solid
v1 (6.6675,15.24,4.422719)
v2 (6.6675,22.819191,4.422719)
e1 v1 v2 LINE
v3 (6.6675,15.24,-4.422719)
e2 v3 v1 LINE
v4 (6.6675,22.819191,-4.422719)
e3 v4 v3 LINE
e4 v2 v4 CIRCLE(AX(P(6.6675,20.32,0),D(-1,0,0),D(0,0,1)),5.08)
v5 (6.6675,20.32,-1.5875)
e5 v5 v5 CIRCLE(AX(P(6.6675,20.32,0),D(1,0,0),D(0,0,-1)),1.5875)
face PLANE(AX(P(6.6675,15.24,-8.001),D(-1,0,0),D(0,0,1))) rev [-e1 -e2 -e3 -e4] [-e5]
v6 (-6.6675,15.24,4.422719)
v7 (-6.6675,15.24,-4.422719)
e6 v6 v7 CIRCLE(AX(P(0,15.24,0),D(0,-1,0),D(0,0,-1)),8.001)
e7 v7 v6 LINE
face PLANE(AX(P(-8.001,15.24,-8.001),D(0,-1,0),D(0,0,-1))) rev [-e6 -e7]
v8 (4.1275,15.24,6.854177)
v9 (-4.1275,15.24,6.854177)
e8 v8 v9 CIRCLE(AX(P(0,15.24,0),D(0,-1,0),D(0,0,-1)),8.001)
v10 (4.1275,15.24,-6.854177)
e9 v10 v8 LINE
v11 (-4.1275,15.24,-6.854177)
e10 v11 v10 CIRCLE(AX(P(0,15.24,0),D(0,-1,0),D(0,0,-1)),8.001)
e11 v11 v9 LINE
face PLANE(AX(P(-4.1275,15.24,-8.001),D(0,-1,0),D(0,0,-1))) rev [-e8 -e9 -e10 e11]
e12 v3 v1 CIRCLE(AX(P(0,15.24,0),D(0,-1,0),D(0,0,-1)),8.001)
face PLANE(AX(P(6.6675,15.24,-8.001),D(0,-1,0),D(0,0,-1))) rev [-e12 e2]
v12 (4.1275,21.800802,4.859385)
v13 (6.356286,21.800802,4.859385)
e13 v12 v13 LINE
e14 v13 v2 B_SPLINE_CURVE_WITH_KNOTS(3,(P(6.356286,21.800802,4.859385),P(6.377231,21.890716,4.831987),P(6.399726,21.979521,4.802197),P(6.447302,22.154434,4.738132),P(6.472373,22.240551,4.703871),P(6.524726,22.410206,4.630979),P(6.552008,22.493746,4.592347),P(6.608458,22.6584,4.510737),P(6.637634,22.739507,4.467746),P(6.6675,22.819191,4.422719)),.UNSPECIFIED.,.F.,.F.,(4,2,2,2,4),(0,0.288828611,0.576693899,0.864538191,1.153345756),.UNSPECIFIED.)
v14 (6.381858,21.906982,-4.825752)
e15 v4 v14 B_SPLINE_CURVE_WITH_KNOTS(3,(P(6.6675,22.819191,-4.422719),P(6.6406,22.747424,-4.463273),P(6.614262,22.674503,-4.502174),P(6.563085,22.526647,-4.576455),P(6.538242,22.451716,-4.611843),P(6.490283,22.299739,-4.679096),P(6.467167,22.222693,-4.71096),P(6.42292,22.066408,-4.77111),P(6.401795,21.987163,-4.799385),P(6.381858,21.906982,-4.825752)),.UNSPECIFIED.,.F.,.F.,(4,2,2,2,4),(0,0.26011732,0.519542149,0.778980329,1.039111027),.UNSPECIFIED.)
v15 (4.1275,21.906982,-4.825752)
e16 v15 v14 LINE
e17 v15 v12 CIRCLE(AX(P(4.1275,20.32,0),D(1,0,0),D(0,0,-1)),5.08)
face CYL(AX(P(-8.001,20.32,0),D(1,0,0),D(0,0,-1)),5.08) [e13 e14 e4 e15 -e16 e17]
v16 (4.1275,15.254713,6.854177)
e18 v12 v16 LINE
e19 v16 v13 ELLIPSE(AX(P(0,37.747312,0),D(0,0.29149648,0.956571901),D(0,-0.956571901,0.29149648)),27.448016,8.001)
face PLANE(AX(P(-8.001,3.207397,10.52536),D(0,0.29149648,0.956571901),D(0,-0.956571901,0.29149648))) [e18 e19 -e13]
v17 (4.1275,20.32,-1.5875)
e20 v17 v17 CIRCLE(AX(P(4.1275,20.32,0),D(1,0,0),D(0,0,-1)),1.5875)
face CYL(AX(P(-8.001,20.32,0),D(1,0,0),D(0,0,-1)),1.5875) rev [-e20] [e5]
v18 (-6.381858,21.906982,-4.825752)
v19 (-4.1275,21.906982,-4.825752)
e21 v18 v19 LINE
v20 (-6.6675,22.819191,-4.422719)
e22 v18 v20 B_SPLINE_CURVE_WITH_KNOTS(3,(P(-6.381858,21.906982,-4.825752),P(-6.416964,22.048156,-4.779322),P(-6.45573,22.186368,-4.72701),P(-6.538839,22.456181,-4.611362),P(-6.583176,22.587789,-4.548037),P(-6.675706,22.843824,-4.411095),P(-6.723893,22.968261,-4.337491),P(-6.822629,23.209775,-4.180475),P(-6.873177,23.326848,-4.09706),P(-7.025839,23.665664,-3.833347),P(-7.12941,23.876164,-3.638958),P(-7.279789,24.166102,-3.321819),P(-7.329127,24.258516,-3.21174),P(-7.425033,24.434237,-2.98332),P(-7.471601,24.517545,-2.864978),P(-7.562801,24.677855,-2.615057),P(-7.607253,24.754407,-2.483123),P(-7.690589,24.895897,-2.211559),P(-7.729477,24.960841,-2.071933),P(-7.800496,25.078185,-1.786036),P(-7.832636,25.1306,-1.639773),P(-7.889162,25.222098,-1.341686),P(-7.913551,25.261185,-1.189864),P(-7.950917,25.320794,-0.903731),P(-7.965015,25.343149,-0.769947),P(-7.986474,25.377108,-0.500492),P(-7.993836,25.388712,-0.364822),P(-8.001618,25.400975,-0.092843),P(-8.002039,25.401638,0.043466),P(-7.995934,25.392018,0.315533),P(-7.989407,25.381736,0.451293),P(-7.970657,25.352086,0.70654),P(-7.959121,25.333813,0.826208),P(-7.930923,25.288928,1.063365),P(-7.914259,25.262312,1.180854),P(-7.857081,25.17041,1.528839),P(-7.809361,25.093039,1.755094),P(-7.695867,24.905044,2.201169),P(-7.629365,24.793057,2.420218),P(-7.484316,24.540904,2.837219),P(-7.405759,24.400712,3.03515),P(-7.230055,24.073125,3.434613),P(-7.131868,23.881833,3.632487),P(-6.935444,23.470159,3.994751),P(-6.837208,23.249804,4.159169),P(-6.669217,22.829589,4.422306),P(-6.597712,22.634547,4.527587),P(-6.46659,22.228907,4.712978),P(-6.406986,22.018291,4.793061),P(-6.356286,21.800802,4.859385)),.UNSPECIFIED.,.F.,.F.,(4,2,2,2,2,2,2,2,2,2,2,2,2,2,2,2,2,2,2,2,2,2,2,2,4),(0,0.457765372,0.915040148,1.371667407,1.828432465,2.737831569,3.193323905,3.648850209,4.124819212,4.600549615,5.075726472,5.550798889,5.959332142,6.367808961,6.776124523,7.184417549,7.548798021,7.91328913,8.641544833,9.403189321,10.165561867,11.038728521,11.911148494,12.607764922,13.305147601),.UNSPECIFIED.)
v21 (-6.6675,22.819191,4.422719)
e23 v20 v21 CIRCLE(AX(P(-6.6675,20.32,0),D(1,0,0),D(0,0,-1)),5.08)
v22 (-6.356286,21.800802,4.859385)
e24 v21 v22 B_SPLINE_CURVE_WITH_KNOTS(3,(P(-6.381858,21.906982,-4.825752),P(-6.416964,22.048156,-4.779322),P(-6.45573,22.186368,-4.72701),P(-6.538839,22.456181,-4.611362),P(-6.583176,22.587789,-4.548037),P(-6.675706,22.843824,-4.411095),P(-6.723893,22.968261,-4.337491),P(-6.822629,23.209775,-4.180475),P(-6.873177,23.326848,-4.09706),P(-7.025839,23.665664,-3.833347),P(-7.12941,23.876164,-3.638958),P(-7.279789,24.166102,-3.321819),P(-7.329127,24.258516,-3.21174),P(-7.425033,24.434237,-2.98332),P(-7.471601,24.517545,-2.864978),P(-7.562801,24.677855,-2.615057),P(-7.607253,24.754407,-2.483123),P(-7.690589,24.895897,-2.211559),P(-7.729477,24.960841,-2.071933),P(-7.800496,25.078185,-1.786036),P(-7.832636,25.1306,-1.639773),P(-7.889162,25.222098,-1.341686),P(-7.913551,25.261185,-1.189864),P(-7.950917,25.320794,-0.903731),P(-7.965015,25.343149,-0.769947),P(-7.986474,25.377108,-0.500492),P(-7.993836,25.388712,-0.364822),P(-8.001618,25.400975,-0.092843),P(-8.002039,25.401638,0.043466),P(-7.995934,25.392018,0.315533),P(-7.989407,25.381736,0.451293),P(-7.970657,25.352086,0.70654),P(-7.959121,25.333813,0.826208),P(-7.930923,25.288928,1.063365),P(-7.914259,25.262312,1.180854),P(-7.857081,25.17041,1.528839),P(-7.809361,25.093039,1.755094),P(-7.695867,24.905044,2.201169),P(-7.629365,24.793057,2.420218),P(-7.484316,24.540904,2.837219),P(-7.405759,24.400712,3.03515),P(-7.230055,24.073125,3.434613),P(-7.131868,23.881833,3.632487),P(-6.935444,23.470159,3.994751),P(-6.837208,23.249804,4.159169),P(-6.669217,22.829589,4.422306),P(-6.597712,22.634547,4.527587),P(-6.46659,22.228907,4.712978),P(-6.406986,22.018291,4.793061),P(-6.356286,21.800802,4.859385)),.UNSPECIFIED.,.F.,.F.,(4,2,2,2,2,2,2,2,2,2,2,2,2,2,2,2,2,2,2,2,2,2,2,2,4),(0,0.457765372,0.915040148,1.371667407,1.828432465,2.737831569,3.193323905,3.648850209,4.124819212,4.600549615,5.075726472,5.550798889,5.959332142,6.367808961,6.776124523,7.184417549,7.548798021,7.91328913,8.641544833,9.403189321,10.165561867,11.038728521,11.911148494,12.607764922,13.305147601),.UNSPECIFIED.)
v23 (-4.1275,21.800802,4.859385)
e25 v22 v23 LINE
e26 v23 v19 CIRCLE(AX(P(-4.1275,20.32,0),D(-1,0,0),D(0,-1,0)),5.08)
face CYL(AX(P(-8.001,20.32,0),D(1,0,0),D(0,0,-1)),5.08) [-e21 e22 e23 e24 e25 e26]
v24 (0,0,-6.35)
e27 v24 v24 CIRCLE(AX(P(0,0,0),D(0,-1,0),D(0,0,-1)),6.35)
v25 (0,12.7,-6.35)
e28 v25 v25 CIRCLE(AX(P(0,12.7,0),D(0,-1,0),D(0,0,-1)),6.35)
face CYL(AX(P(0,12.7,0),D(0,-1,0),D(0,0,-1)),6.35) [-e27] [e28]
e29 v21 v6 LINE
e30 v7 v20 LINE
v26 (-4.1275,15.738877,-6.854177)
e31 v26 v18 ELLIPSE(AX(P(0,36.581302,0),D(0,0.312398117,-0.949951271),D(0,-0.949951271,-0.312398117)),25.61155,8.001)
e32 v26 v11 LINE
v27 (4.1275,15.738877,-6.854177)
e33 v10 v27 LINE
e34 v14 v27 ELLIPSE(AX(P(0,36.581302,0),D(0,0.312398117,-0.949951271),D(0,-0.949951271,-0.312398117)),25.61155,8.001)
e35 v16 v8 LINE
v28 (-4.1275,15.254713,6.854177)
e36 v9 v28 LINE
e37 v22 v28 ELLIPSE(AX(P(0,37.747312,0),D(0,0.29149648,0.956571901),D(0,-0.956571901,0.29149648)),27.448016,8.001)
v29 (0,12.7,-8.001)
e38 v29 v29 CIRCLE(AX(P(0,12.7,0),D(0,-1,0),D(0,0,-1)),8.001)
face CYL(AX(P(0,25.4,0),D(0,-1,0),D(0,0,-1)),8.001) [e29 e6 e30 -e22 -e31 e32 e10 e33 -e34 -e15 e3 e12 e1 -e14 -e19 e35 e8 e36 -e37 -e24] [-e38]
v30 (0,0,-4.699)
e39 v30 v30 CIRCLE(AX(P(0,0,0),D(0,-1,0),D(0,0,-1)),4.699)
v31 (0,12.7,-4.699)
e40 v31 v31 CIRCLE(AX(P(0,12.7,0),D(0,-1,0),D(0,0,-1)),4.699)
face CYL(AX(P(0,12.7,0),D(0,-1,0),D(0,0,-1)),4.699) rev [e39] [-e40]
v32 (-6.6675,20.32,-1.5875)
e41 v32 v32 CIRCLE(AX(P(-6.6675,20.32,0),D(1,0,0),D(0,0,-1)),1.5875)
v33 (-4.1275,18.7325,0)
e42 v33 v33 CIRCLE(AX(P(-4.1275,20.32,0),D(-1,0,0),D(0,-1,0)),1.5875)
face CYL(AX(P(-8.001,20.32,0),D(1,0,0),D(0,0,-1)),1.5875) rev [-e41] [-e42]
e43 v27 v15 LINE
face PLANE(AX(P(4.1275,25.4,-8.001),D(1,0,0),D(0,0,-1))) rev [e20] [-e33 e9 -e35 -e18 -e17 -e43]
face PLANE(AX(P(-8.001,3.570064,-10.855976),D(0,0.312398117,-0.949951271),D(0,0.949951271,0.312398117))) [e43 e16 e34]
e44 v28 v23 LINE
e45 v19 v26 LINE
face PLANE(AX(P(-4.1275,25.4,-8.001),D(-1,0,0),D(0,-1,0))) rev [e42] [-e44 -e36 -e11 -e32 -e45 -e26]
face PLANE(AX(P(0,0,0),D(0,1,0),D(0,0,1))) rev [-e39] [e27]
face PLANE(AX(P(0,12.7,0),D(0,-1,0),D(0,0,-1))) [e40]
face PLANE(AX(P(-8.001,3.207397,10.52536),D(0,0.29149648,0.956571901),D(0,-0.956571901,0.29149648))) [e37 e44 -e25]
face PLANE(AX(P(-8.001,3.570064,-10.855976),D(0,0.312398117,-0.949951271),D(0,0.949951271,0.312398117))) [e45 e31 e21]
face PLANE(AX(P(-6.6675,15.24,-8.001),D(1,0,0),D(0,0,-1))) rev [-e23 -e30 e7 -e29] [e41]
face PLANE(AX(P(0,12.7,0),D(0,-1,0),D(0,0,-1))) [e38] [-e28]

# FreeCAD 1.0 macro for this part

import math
import FreeCAD as App
import Part
import Sketcher
from FreeCAD import Vector
Q = App.Units.Quantity

doc = App.newDocument("Part")
body = doc.addObject("PartDesign::Body", "Body")

# Sketch on XZ plane
sketch1 = body.newObject("Sketcher::SketchObject", "Sketch")
sketch1.AttachmentSupport = (doc.getObject("XZ_Plane"), [""])
sketch1.MapMode = "FlatFace"
sketch1.addGeometry(Part.Circle(Vector(0, 0, 0), Vector(0, 0, 1), 8), False)
sketch1.addConstraint([
    Sketcher.Constraint("Coincident", 0, 3, -1, 1),
    Sketcher.Constraint("Diameter", 0, Q("0.63 in")),
])
pad1 = body.newObject("PartDesign::Pad", "Pad")
pad1.Profile = sketch1
pad1.Length = Q("1 in")
pad1.Reversed = True

# Sketch on XZ plane
sketch2 = body.newObject("Sketcher::SketchObject", "Sketch001")
sketch2.AttachmentSupport = (doc.getObject("XZ_Plane"), [""])
sketch2.MapMode = "FlatFace"
sketch2.addGeometry([
    Part.Circle(Vector(0, 0, 0), Vector(0, 0, 1), 8),
    Part.Circle(Vector(0, 0, 0), Vector(0, 0, 1), 6.3),
    Part.Circle(Vector(0, 0, 0), Vector(0, 0, 1), 4.7),
], False)
sketch2.addConstraint([
    Sketcher.Constraint("Coincident", 0, 3, -1, 1),
    Sketcher.Constraint("Coincident", 1, 3, -1, 1),
    Sketcher.Constraint("Coincident", 2, 3, -1, 1),
    Sketcher.Constraint("Diameter", 1, Q("0.5 in")),
    Sketcher.Constraint("Diameter", 0, Q("0.63 in")),
    Sketcher.Constraint("Diameter", 2, Q("0.37 in")),
])
pocket1 = body.newObject("PartDesign::Pocket", "Pocket")
pocket1.Profile = sketch2
pocket1.Length = Q("0.5 in")

# Sketch on XY plane
sketch3 = body.newObject("Sketcher::SketchObject", "Sketch002")
sketch3.AttachmentSupport = (doc.getObject("XY_Plane"), [""])
sketch3.MapMode = "FlatFace"
sketch3.addGeometry([
    Part.LineSegment(Vector(-4.1, 25.4, 0), Vector(-4.1, 15.2, 0)),  # 0
    Part.LineSegment(Vector(-4.1, 15.2, 0), Vector(4.1, 15.2, 0)),  # 1
    Part.LineSegment(Vector(4.1, 15.2, 0), Vector(4.1, 25.4, 0)),  # 2
    Part.LineSegment(Vector(4.1, 25.4, 0), Vector(-4.1, 25.4, 0)),  # 3
    Part.LineSegment(Vector(-8, 25.4, 0), Vector(-8, 15.2, 0)),  # 4
    Part.LineSegment(Vector(-8, 15.2, 0), Vector(-6.7, 15.2, 0)),  # 5
    Part.LineSegment(Vector(-6.7, 15.2, 0), Vector(-6.7, 25.4, 0)),  # 6
    Part.LineSegment(Vector(-6.7, 25.4, 0), Vector(-8, 25.4, 0)),  # 7
    Part.LineSegment(Vector(6.7, 25.4, 0), Vector(6.7, 15.2, 0)),  # 8
    Part.LineSegment(Vector(6.7, 15.2, 0), Vector(8, 15.2, 0)),  # 9
    Part.LineSegment(Vector(8, 15.2, 0), Vector(8, 25.4, 0)),  # 10
    Part.LineSegment(Vector(8, 25.4, 0), Vector(6.7, 25.4, 0)),  # 11
], False)
sketch3.addConstraint([
    Sketcher.Constraint("Coincident", 0, 2, 1, 1),
    Sketcher.Constraint("Coincident", 1, 2, 2, 1),
    Sketcher.Constraint("Coincident", 2, 2, 3, 1),
    Sketcher.Constraint("Coincident", 3, 2, 0, 1),
    Sketcher.Constraint("Coincident", 4, 2, 5, 1),
    Sketcher.Constraint("Coincident", 5, 2, 6, 1),
    Sketcher.Constraint("Coincident", 6, 2, 7, 1),
    Sketcher.Constraint("Coincident", 7, 2, 4, 1),
    Sketcher.Constraint("Coincident", 8, 2, 9, 1),
    Sketcher.Constraint("Coincident", 9, 2, 10, 1),
    Sketcher.Constraint("Coincident", 10, 2, 11, 1),
    Sketcher.Constraint("Coincident", 11, 2, 8, 1),
    Sketcher.Constraint("Vertical", 0),
    Sketcher.Constraint("Horizontal", 1),
    Sketcher.Constraint("Vertical", 2),
    Sketcher.Constraint("Horizontal", 3),
    Sketcher.Constraint("Vertical", 4),
    Sketcher.Constraint("Horizontal", 5),
    Sketcher.Constraint("Vertical", 6),
    Sketcher.Constraint("Horizontal", 7),
    Sketcher.Constraint("Vertical", 8),
    Sketcher.Constraint("Horizontal", 9),
    Sketcher.Constraint("Vertical", 10),
    Sketcher.Constraint("Horizontal", 11),
    Sketcher.Constraint("Symmetric", 5, 2, 8, 2, -2),
    Sketcher.Constraint("Symmetric", 7, 2, 10, 2, -2),
    Sketcher.Constraint("Horizontal", 1, 2, 4, 2),
    Sketcher.Constraint("Horizontal", 3, 2, 6, 2),
    Sketcher.Constraint("DistanceY", 0, 2, 0, 1, Q("0.4 in")),
    Sketcher.Constraint("DistanceY", -1, 1, 2, 2, Q("1 in")),
    Sketcher.Constraint("DistanceX", 5, 2, 0, 2, Q("0.1 in")),
    Sketcher.Constraint("DistanceX", 1, 2, 8, 2, Q("0.1 in")),
    Sketcher.Constraint("DistanceX", 1, 1, 1, 2, Q("0.325 in")),
    Sketcher.Constraint("DistanceX", 5, 1, 5, 2, Q("0.0525 in")),
])
pocket2 = body.newObject("PartDesign::Pocket", "Pocket001")
pocket2.Profile = sketch3
pocket2.Type = "ThroughAll"
pocket2.Midplane = True

# Sketch on YZ plane
sketch4 = body.newObject("Sketcher::SketchObject", "Sketch003")
sketch4.AttachmentSupport = (doc.getObject("YZ_Plane"), [""])
sketch4.MapMode = "FlatFace"
sketch4.AttachmentOffset = App.Placement(Vector(0, 0, 0.2625 * 25.4), App.Rotation())
sketch4.addGeometry([
    Part.ArcOfCircle(Part.Circle(Vector(20.3, 0, 0), Vector(0, 0, 1), 5.1), math.radians(-71.8), math.radians(-60.53)),  # 0
    Part.LineSegment(Vector(21.9, -4.8, 0), Vector(15.2, -7, 0)),  # 1
    Part.LineSegment(Vector(15.2, -7, 0), Vector(50.8, -7, 0)),  # 2
    Part.LineSegment(Vector(50.8, -7, 0), Vector(50.8, 6.9, 0)),  # 3
    Part.LineSegment(Vector(50.8, 6.9, 0), Vector(15.2, 6.9, 0)),  # 4
    Part.LineSegment(Vector(15.2, 6.9, 0), Vector(21.8, 4.9, 0)),  # 5
    Part.ArcOfCircle(Part.Circle(Vector(20.3, 0, 0), Vector(0, 0, 1), 5.1), math.radians(60.53), math.radians(73.05)),  # 6
    Part.ArcOfCircle(Part.Circle(Vector(20.3, 0, 0), Vector(0, 0, 1), 5.1), math.radians(0), math.radians(61)),  # 7
    Part.ArcOfCircle(Part.Circle(Vector(20.3, 0, 0), Vector(0, 0, 1), 5.1), math.radians(-61), math.radians(0)),  # 8
    Part.ArcOfCircle(Part.Circle(Vector(20.3, 0, 0), Vector(0, 0, 1), 1.6), math.radians(-90), math.radians(0)),  # 9
    Part.ArcOfCircle(Part.Circle(Vector(20.3, 0, 0), Vector(0, 0, 1), 1.6), math.radians(0), math.radians(180)),  # 10
    Part.ArcOfCircle(Part.Circle(Vector(20.3, 0, 0), Vector(0, 0, 1), 1.6), math.radians(180), math.radians(270)),  # 11
], False)
sketch4.addConstraint([
    Sketcher.Constraint("Tangent", 0, 1, 1, 1),
    Sketcher.Constraint("Coincident", 1, 2, 2, 1),
    Sketcher.Constraint("Coincident", 2, 2, 3, 1),
    Sketcher.Constraint("Coincident", 3, 2, 4, 1),
    Sketcher.Constraint("Coincident", 4, 2, 5, 1),
    Sketcher.Constraint("Tangent", 5, 2, 6, 2),
    Sketcher.Constraint("Tangent", 6, 1, 7, 2),
    Sketcher.Constraint("Tangent", 7, 1, 8, 2),
    Sketcher.Constraint("Tangent", 8, 1, 0, 2),
    Sketcher.Constraint("Tangent", 9, 2, 10, 1),
    Sketcher.Constraint("Tangent", 10, 2, 11, 1),
    Sketcher.Constraint("Tangent", 11, 2, 9, 1),
    Sketcher.Constraint("Vertical", 3),
    Sketcher.Constraint("Horizontal", 4),
    Sketcher.Constraint("Coincident", 6, 3, 0, 3),
    Sketcher.Constraint("Coincident", 9, 3, 0, 3),
    Sketcher.Constraint("Equal", 0, 6),
    Sketcher.Constraint("Symmetric", 6, 1, 8, 1, -1),
    Sketcher.Constraint("PointOnObject", 7, 1, -1),
    Sketcher.Constraint("PointOnObject", 9, 2, -1),
    Sketcher.Constraint("PointOnObject", 10, 2, -1),
    Sketcher.Constraint("Vertical", 1, 2, 4, 2),
    Sketcher.Constraint("Vertical", 10, 3, 11, 2),
    Sketcher.Constraint("Radius", 0, Q("0.2 in")),
    Sketcher.Constraint("DistanceX", 4, 2, 4, 1, Q("1.4 in")),
    Sketcher.Constraint("DistanceX", -1, 1, 2, 2, Q("2 in")),
    Sketcher.Constraint("DistanceX", -1, 1, 7, 1, Q("1 in")),
    Sketcher.Constraint("Radius", 9, Q("0.0625 in")),
    Sketcher.Constraint("Distance", 5, 6.858661),
    Sketcher.Constraint("DistanceY", 3, 1, 3, 2, 13.814655),
    Sketcher.Constraint("DistanceX", -1, 1, 6, 1, 22.819191),
    Sketcher.Constraint("DistanceY", 2, 2, 0, 1, 2.130241),
])
pocket3 = body.newObject("PartDesign::Pocket", "Pocket002")
pocket3.Profile = sketch4
pocket3.Type = "ThroughAll"

doc.recompute()
